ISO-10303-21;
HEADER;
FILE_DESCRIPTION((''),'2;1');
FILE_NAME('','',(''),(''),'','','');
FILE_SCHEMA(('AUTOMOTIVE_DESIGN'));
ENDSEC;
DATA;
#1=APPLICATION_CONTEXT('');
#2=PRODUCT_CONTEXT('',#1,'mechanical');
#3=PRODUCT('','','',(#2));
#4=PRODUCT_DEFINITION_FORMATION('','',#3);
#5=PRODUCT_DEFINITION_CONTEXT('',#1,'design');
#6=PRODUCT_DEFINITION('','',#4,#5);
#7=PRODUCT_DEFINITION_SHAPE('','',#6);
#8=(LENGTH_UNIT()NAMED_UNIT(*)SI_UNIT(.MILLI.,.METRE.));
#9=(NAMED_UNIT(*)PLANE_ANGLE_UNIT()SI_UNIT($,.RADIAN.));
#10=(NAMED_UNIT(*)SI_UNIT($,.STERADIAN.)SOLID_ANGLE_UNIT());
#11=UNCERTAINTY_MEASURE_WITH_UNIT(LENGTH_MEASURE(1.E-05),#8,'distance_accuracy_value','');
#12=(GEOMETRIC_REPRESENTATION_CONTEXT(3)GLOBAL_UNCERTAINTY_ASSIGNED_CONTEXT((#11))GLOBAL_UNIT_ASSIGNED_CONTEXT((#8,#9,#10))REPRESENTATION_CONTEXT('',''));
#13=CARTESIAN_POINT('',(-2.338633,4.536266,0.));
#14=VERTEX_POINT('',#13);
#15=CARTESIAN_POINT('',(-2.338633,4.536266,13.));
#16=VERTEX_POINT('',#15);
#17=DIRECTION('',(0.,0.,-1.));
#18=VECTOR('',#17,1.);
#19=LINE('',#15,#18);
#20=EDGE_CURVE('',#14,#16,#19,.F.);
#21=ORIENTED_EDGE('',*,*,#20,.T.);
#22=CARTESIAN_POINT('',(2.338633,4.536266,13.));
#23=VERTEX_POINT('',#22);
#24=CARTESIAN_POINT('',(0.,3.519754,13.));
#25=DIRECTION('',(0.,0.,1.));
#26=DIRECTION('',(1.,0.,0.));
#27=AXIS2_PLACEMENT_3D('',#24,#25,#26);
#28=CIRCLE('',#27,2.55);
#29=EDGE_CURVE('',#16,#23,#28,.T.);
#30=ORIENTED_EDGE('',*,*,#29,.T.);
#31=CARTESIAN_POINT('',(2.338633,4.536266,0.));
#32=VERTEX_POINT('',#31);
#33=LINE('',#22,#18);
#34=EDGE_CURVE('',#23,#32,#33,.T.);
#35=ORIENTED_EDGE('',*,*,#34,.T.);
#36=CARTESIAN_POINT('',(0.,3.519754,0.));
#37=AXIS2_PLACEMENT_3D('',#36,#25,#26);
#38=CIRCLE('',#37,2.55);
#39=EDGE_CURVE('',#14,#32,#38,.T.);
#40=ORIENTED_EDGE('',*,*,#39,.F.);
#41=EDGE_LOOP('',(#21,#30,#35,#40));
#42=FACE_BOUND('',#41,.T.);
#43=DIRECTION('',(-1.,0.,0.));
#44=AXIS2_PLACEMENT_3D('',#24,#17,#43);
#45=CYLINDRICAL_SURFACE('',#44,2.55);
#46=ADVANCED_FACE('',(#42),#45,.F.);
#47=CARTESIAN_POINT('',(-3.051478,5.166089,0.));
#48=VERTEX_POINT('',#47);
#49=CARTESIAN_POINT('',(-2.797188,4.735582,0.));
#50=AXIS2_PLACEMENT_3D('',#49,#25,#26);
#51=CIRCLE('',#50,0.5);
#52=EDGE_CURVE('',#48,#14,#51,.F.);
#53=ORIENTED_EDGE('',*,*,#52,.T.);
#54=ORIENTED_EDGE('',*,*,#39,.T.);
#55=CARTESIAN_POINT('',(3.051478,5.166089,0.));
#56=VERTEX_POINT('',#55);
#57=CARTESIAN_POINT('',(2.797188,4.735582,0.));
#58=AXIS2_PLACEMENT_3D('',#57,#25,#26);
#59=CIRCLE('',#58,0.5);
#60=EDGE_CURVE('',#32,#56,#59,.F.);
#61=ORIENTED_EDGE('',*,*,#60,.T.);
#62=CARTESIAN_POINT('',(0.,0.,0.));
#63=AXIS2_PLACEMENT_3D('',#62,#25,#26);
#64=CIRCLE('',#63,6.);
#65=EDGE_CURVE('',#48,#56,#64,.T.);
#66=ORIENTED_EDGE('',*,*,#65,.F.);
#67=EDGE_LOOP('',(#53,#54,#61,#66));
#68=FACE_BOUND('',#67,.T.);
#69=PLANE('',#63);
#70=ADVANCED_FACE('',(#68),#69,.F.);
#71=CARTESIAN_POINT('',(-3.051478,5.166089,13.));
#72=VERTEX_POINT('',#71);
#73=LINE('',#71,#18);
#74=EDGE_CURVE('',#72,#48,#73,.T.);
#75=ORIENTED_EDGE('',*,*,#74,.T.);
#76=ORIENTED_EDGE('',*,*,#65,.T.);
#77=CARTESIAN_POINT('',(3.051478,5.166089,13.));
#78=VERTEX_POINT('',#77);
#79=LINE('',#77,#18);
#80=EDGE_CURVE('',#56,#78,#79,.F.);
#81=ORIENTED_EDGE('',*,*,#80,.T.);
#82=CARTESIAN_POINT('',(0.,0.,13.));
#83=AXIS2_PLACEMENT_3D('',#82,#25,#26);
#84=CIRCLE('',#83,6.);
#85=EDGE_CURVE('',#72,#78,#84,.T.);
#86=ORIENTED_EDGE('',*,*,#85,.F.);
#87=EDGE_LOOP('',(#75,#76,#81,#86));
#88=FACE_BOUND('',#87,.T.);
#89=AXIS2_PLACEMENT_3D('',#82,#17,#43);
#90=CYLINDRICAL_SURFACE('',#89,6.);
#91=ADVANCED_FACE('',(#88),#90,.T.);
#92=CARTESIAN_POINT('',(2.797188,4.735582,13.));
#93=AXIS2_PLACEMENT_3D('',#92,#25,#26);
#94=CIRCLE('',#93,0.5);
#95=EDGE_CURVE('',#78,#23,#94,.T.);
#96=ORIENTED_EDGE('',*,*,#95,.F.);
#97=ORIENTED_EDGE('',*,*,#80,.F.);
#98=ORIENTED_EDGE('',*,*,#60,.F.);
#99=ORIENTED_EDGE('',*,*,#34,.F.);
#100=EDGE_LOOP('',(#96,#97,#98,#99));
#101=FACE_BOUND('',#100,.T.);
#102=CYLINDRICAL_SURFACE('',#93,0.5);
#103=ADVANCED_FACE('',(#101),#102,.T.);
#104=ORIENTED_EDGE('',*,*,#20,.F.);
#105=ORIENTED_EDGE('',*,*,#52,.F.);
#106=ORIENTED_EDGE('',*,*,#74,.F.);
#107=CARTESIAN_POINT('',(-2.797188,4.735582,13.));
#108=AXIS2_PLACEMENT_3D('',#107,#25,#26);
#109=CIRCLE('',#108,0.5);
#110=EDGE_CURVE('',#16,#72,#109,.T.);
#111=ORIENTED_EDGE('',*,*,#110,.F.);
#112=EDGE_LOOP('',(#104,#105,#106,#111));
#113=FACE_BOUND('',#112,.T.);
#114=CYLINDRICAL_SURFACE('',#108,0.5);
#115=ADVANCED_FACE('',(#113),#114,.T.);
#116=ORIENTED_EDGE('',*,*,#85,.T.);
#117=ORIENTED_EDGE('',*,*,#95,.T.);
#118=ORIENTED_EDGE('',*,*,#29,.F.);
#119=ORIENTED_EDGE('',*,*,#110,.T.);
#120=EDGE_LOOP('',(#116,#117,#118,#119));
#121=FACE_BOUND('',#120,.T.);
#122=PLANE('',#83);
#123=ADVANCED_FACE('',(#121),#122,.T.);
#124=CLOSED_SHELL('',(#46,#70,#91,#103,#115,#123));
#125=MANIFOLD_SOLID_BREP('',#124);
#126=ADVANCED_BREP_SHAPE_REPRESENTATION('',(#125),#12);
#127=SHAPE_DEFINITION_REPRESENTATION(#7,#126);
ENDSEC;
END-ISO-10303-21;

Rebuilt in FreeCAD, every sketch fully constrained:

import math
import FreeCAD as App
import Part
import Sketcher
Q = App.Units.Quantity


def edges_at(feature, points):
    """Names of the edges that pass closest to the given points."""
    edges = feature.Shape.Edges
    near = lambda p: min(range(len(edges)), key=lambda i: edges[i].distToShape(Part.Vertex(*p))[0])
    return sorted({f"Edge{near(p) + 1}" for p in points})

doc = App.newDocument("Part")
body = doc.addObject("PartDesign::Body", "Body")

# Sketch on XY plane
sketch1 = body.newObject("Sketcher::SketchObject", "Sketch")
sketch1.AttachmentSupport = (doc.getObject("XY_Plane"), [""])
sketch1.MapMode = "FlatFace"
sketch1.addGeometry([
    Part.ArcOfCircle(Part.Circle(App.Vector(0, 0, 0), App.Vector(0, 0, 1), 6), math.radians(97), math.radians(360)),
    Part.ArcOfCircle(Part.Circle(App.Vector(0, 0, 0), App.Vector(0, 0, 1), 6), math.radians(0), math.radians(83)),
    Part.ArcOfCircle(Part.Circle(App.Vector(0, 3.5, 0), App.Vector(0, 0, 1), 2.5), math.radians(0), math.radians(72)),
    Part.ArcOfCircle(Part.Circle(App.Vector(0, 3.5, 0), App.Vector(0, 0, 1), 2.5), math.radians(108), math.radians(360)),
], False)
sketch1.addConstraint([
    Sketcher.Constraint("Tangent", 0, 2, 1, 1),
    Sketcher.Constraint("Coincident", 1, 2, 2, 2),
    Sketcher.Constraint("Tangent", 2, 1, 3, 2),
    Sketcher.Constraint("Coincident", 3, 1, 0, 1),
    Sketcher.Constraint("Coincident", 0, 3, -1, 1),
    Sketcher.Constraint("Equal", 0, 1),
    Sketcher.Constraint("Equal", 2, 3),
    Sketcher.Constraint("PointOnObject", 2, 3, -2),
    Sketcher.Constraint("PointOnObject", 0, 2, -1),
    Sketcher.Constraint("Horizontal", 3, 3, 2, 1),
    Sketcher.Constraint("Radius", 0, Q("6 mm")),
    Sketcher.Constraint("Radius", 2, Q("2.55 mm")),
    Sketcher.Constraint("DistanceY", 2, 3, 1, 2, Q("2.430401 mm")),
])
pad1 = body.newObject("PartDesign::Pad", "Pad")
pad1.Profile = sketch1
pad1.Length = 13
doc.recompute()

fillet = body.newObject("PartDesign::Fillet", "Fillet")
fillet.Base = (pad1, edges_at(pad1, [(-0.772, 5.95, 6.5), (0.772, 5.95, 6.5)]))
fillet.Radius = 0.5

doc.recompute()
